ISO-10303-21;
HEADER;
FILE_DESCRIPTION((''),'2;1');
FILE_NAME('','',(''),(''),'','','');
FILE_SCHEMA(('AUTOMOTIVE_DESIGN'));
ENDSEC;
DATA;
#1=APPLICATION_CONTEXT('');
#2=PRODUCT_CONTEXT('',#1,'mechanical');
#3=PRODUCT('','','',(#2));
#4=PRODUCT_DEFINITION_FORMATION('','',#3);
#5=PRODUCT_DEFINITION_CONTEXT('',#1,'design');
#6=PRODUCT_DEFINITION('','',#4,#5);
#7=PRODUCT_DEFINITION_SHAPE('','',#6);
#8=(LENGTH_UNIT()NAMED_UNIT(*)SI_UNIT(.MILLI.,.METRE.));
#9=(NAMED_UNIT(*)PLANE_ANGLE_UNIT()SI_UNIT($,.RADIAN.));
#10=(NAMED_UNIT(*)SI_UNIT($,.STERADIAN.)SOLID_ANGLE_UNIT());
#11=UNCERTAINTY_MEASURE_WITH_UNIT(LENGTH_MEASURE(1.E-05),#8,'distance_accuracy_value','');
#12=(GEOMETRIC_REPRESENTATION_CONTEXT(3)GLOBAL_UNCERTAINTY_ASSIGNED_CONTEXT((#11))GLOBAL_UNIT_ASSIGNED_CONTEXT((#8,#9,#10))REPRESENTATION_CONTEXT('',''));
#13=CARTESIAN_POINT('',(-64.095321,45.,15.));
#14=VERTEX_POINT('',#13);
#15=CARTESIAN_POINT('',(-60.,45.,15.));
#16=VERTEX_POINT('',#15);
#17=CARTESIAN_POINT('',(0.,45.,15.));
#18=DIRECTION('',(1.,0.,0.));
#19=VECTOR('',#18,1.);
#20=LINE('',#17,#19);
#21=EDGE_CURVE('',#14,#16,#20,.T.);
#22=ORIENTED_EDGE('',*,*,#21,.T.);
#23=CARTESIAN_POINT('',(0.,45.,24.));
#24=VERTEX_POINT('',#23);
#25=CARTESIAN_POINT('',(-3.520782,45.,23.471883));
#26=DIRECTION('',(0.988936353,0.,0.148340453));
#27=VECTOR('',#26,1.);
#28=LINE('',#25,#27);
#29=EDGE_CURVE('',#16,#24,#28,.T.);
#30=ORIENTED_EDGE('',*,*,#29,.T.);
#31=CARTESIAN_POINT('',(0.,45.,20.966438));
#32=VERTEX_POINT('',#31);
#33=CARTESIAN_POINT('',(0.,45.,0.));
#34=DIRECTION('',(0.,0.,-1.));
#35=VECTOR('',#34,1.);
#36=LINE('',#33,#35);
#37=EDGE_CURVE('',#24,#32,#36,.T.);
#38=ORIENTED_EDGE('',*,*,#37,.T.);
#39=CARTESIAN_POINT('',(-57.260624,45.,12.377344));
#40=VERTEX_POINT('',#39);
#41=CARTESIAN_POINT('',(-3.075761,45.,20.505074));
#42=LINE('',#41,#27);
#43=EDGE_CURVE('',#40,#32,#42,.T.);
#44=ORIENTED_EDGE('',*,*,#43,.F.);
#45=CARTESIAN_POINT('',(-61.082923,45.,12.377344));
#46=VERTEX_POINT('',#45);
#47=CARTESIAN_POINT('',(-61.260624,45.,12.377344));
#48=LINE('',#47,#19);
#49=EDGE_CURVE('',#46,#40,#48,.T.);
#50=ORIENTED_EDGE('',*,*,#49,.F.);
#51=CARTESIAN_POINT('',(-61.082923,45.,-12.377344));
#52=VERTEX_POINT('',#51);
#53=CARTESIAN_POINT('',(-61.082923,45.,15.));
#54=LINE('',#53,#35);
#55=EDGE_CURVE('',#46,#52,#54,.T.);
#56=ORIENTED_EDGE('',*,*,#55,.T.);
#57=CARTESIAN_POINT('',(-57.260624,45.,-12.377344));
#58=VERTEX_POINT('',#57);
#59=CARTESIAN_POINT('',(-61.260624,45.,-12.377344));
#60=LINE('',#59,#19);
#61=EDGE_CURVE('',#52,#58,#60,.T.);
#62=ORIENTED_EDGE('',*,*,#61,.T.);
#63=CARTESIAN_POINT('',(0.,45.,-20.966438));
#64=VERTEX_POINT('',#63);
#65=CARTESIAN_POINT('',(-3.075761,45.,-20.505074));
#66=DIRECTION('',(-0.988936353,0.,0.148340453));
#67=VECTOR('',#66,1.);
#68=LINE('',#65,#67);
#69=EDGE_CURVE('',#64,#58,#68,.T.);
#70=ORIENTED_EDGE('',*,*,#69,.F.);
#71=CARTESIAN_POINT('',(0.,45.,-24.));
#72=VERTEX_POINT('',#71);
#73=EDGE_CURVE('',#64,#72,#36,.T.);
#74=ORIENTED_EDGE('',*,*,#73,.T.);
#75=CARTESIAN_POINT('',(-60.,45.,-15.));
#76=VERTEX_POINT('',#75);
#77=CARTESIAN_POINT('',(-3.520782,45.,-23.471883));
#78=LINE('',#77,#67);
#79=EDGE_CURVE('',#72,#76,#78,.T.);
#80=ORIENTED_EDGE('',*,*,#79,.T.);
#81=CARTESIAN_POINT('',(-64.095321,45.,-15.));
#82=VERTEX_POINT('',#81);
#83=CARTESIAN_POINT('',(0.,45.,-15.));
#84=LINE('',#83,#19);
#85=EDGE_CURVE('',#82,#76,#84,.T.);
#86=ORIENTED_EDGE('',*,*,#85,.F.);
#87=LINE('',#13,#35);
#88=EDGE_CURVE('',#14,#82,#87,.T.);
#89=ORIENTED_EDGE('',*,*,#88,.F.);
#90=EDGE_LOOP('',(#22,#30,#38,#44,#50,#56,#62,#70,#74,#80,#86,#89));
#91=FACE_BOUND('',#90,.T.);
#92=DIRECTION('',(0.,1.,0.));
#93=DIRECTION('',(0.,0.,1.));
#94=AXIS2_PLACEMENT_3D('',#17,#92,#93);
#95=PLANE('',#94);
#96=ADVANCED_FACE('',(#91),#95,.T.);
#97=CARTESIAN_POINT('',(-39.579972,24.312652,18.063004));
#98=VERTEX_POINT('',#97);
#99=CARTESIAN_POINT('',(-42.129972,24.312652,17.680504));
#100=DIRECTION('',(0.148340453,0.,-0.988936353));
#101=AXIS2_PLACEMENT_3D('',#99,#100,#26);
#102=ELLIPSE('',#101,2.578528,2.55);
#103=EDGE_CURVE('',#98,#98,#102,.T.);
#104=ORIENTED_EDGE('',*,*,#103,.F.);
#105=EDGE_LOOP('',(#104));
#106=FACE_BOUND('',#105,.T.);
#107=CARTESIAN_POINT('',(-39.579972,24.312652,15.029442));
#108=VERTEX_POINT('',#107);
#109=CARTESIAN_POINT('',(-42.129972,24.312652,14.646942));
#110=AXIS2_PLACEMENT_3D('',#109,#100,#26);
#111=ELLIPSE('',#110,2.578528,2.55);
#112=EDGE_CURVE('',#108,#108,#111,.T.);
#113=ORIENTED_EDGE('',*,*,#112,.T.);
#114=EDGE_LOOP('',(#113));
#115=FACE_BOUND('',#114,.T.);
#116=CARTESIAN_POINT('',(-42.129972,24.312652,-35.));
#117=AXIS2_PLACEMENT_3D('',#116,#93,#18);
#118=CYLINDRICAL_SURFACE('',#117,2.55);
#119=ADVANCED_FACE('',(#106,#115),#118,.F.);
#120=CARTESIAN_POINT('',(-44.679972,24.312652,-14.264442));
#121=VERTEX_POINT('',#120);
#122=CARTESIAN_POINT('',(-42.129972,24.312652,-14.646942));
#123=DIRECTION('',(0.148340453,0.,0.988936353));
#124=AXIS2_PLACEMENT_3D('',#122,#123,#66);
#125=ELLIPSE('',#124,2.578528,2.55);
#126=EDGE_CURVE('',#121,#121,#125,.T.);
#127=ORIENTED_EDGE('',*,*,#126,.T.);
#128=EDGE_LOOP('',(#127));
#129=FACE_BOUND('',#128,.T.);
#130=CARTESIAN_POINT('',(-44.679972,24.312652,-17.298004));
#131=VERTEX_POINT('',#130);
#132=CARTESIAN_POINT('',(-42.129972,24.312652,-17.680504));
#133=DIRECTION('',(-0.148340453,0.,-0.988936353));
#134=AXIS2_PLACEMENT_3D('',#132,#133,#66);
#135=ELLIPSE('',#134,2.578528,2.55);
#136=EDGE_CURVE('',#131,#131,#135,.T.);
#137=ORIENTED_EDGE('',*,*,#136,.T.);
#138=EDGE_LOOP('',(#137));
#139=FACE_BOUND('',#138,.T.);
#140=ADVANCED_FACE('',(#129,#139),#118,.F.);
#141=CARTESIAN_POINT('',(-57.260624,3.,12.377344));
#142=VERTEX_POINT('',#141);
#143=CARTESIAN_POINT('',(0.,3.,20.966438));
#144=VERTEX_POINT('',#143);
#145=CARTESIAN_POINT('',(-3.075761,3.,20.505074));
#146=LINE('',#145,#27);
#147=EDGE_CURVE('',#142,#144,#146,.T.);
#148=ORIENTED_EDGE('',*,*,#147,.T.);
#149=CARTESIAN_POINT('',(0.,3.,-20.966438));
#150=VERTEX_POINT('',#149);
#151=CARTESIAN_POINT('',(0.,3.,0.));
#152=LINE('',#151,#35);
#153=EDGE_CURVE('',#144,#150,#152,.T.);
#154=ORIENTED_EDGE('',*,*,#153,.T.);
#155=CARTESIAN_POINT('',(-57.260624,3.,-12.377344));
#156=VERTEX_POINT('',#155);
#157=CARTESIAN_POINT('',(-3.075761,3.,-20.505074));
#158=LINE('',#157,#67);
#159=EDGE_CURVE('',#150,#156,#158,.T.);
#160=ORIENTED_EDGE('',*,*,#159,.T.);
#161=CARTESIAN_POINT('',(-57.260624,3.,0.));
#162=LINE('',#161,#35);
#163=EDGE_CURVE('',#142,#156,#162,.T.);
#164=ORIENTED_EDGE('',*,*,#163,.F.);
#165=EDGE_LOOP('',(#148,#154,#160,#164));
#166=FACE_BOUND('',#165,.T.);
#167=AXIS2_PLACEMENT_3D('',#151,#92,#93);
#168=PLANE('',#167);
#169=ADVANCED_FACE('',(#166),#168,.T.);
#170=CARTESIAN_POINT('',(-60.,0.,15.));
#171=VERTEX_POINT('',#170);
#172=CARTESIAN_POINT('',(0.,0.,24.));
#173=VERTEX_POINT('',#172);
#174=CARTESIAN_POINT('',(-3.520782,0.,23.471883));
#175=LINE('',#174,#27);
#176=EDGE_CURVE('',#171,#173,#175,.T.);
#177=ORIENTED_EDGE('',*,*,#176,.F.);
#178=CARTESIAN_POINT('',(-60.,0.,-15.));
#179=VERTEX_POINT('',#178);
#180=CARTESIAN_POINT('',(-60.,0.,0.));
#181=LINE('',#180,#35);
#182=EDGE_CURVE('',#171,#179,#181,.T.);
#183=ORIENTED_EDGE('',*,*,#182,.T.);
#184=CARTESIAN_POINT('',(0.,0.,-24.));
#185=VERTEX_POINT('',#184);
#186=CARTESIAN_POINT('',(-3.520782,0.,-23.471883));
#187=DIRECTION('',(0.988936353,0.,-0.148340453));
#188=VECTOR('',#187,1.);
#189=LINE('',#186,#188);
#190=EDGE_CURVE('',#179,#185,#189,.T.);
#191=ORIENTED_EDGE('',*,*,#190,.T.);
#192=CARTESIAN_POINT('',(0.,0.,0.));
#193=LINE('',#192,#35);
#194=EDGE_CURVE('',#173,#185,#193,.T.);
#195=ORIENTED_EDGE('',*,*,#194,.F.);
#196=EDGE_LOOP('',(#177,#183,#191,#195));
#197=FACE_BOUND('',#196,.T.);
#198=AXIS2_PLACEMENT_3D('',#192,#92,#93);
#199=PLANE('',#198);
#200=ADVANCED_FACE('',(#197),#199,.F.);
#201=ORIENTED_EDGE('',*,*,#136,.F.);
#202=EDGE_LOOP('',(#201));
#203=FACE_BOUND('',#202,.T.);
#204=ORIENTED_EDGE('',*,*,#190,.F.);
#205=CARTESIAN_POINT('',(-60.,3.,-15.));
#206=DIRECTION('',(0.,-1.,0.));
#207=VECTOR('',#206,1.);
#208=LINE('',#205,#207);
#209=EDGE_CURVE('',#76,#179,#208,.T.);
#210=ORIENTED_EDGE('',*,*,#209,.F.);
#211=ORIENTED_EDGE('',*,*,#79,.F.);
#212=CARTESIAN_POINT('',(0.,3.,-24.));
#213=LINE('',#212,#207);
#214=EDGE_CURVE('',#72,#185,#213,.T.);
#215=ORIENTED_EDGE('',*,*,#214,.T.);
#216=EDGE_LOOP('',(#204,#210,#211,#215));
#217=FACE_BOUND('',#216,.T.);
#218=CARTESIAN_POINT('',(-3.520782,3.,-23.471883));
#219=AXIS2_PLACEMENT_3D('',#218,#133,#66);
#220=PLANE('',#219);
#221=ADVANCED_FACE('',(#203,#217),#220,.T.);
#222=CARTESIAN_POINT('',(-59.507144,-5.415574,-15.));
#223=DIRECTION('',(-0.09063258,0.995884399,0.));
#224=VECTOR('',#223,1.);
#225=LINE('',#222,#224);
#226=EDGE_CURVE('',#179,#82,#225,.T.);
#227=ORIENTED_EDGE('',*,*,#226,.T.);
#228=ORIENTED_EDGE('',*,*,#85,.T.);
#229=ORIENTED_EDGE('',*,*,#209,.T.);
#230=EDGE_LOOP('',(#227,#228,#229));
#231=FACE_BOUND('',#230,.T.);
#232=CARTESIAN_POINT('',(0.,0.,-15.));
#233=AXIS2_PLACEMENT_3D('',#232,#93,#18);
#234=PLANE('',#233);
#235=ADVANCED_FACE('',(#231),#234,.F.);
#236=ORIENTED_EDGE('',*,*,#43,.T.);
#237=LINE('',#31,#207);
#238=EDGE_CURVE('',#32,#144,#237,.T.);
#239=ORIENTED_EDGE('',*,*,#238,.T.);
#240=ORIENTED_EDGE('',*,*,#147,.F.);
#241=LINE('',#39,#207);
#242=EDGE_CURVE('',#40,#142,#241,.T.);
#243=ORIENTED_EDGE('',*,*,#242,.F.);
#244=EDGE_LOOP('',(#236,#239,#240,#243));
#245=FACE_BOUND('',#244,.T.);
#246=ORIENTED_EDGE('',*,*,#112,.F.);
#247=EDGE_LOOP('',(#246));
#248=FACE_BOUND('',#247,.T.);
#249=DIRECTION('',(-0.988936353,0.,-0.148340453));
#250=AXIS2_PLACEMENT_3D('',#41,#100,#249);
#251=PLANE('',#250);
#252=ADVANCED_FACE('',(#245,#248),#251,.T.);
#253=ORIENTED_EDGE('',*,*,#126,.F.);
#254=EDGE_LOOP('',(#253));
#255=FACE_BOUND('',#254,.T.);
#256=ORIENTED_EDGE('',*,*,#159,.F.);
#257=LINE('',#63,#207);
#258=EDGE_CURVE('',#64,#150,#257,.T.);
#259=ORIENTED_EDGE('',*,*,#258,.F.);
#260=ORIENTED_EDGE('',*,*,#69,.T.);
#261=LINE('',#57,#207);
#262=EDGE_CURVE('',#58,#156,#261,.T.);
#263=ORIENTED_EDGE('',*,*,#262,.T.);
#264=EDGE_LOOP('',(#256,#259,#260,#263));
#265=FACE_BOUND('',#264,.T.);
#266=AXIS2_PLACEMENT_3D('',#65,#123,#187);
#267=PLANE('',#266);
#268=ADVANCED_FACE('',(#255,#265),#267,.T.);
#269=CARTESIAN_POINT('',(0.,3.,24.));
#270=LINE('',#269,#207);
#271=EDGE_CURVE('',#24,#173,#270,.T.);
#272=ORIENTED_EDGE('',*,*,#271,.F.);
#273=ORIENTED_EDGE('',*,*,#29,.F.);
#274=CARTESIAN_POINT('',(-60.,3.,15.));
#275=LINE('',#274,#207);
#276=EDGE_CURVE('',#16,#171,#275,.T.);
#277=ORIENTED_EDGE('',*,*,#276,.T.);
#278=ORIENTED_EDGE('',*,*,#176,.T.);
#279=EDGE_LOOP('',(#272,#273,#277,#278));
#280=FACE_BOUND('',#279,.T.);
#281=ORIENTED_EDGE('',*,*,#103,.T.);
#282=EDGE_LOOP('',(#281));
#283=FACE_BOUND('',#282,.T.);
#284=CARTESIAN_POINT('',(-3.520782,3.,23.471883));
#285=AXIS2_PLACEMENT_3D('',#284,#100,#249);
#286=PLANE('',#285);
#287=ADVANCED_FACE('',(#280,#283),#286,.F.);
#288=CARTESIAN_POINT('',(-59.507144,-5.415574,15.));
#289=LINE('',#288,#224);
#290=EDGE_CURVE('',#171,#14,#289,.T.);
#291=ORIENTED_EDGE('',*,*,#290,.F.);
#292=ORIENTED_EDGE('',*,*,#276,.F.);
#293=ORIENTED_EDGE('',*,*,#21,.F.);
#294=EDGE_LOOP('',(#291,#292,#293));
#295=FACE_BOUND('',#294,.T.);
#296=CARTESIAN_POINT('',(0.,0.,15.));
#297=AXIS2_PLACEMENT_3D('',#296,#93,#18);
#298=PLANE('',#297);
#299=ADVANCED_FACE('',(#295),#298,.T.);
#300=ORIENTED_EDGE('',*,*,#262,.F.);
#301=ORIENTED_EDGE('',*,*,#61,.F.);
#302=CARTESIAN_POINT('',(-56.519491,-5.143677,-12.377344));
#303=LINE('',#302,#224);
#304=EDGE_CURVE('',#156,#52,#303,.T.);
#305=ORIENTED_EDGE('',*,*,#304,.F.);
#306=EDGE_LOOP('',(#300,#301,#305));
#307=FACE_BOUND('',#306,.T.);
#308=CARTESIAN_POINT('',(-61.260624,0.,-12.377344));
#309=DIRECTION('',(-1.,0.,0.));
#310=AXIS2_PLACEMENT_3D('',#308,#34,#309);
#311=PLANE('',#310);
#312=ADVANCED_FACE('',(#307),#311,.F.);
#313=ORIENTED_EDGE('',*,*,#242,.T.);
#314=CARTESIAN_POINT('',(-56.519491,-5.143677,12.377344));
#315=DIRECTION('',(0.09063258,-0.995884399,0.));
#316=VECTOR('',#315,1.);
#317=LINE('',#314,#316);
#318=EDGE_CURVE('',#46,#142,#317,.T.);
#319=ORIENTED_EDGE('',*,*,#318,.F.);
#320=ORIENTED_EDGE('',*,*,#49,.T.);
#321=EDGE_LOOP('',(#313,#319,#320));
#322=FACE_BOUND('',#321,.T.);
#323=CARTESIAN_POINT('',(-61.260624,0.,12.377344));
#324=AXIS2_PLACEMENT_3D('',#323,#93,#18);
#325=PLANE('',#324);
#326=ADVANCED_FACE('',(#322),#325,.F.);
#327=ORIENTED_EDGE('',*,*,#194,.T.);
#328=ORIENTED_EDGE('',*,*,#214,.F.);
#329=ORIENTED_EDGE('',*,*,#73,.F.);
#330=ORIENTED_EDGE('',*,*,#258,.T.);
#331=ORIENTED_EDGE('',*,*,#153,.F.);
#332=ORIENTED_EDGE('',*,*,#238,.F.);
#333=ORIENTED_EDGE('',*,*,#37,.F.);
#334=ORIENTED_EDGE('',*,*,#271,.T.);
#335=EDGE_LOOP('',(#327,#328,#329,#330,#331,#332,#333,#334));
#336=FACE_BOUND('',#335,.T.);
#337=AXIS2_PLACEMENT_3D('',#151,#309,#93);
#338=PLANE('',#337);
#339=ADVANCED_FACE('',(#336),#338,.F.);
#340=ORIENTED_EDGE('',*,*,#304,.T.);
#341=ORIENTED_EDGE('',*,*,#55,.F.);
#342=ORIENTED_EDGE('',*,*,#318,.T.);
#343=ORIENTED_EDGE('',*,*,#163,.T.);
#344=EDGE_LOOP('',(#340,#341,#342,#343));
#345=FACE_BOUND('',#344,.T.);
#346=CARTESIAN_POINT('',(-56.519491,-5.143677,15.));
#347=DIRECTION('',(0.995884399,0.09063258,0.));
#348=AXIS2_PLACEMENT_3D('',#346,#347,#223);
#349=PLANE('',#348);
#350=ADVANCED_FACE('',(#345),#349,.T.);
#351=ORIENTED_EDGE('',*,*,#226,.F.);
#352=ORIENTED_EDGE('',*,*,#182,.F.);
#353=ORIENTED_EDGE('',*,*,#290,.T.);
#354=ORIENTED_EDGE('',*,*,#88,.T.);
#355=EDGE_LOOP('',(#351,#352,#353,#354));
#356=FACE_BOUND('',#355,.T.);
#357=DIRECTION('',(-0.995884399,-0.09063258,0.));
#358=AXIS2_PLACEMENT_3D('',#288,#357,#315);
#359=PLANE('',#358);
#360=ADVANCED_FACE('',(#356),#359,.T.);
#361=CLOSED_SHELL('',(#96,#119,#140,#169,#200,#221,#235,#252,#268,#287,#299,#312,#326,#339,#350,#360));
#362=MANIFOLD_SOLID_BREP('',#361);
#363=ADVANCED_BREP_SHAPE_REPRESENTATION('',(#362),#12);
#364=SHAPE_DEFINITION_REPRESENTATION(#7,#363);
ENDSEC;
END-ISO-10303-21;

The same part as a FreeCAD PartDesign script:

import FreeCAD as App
import Part
import Sketcher
from FreeCAD import Vector
Q = App.Units.Quantity


def add_polygon(sketch, points):
    """Adds a closed chain of lines whose ends are joined by coincident constraints."""
    first, n = sketch.GeometryCount, len(points)
    for a, b in zip(points, points[1:] + points[:1]):
        sketch.addGeometry(Part.LineSegment(App.Vector(*a, 0), App.Vector(*b, 0)), False)
    for i in range(n):
        sketch.addConstraint(Sketcher.Constraint("Coincident", first + i, 2, first + (i + 1) % n, 1))

doc = App.newDocument("Part")
body = doc.addObject("PartDesign::Body", "Body")

sketch1 = doc.addObject("Sketcher::SketchObject", "Sketch")
body.addObject(sketch1)
sketch1.AttachmentSupport = (doc.XZ_Plane, [""])
sketch1.MapMode = "FlatFace"
add_polygon(sketch1, [(0, -24), (-60, -15), (-60, 15), (0, 24)])
sketch1.addConstraint(Sketcher.Constraint("Vertical", 1))
sketch1.addConstraint(Sketcher.Constraint("Vertical", 3))
sketch1.addConstraint(Sketcher.Constraint("Symmetric", 2, 2, 3, 2, -1, 1))
sketch1.addConstraint(Sketcher.Constraint("Equal", 0, 2))
sketch1.addConstraint(Sketcher.Constraint("DistanceY", 1, 1, 1, 2, 30.0))
sketch1.addConstraint(Sketcher.Constraint("DistanceY", 3, 2, 3, 1, 48.0))
sketch1.addConstraint(Sketcher.Constraint("DistanceX", 0, 2, -1, 1, 60.0))
pad1 = doc.addObject("PartDesign::Pad", "Pad")
body.addObject(pad1)
pad1.Profile = sketch1
pad1.Length = 3
pad1.Reversed = True

sketch2 = doc.addObject("Sketcher::SketchObject", "Sketch001")
body.addObject(sketch2)
sketch2.AttachmentSupport = (doc.XY_Plane, [""])
sketch2.MapMode = "FlatFace"
add_polygon(sketch2, [(-61.1, 45), (-64.1, 45), (-60, 0), (-57, 0)])
sketch2.addConstraint(Sketcher.Constraint("Horizontal", 0))
sketch2.addConstraint(Sketcher.Constraint("Horizontal", 2))
sketch2.addConstraint(Sketcher.Constraint("PointOnObject", 1, 2, -1))
sketch2.addConstraint(Sketcher.Constraint("Parallel", 1, 3))
sketch2.addConstraint(Sketcher.Constraint("DistanceY", -1, 1, 0, 2, 45.0))
sketch2.addConstraint(Sketcher.Constraint("DistanceX", 1, 2, -1, 1, 60.0))
sketch2.addConstraint(Sketcher.Constraint("Angle", 1, Q("-84.8 deg")))
sketch2.addConstraint(Sketcher.Constraint("DistanceX", 0, 2, 0, 1, 3.012398))
pad2 = doc.addObject("PartDesign::Pad", "Pad001")
body.addObject(pad2)
pad2.Profile = sketch2
pad2.Length = 30
pad2.Midplane = True

sketch3 = doc.addObject("Sketcher::SketchObject", "Sketch002")
body.addObject(sketch3)
sketch3.AttachmentSupport = (doc.XZ_Plane, [""])
sketch3.MapMode = "FlatFace"
sketch3.AttachmentOffset = App.Placement(Vector(0, 0, -3), App.Rotation())
add_polygon(sketch3, [(-57.3, -12.4), (0, -21), (0, -24), (-60, -15), (-57.3, -15)])
add_polygon(sketch3, [(0, 24), (0, 21), (-57.3, 12.4), (-57.3, 15), (-60, 15)])
sketch3.addConstraint(Sketcher.Constraint("Vertical", 1))
sketch3.addConstraint(Sketcher.Constraint("Horizontal", 3))
sketch3.addConstraint(Sketcher.Constraint("Vertical", 4))
sketch3.addConstraint(Sketcher.Constraint("Vertical", 5))
sketch3.addConstraint(Sketcher.Constraint("Vertical", 7))
sketch3.addConstraint(Sketcher.Constraint("Horizontal", 8))
sketch3.addConstraint(Sketcher.Constraint("Symmetric", 0, 2, 5, 2, -1, 1))
sketch3.addConstraint(Sketcher.Constraint("Symmetric", 4, 2, 6, 2, -1))
sketch3.addConstraint(Sketcher.Constraint("Symmetric", 2, 2, 8, 2, -1))
sketch3.addConstraint(Sketcher.Constraint("Symmetric", 1, 2, 9, 2, -1))
sketch3.addConstraint(Sketcher.Constraint("Parallel", 0, 2))
sketch3.addConstraint(Sketcher.Constraint("DistanceY", 1, 2, -1, 1, 24.0))
sketch3.addConstraint(Sketcher.Constraint("DistanceX", 2, 2, -1, 1, 60.0))
sketch3.addConstraint(Sketcher.Constraint("DistanceY", 2, 2, -1, 1, 15.0))
sketch3.addConstraint(Sketcher.Constraint("DistanceX", 3, 1, 3, 2, 2.739376))
sketch3.addConstraint(Sketcher.Constraint("DistanceY", 1, 2, 1, 1, 3.033562))
pad3 = doc.addObject("PartDesign::Pad", "Pad002")
body.addObject(pad3)
pad3.Profile = sketch3
pad3.Length = 42
pad3.Reversed = True

sketch4 = doc.addObject("Sketcher::SketchObject", "Sketch003")
body.addObject(sketch4)
sketch4.AttachmentSupport = (doc.YZ_Plane, [""])
sketch4.MapMode = "FlatFace"
sketch4.AttachmentOffset = App.Placement(Vector(0, 0, -57.260624), App.Rotation())
add_polygon(sketch4, [(45, -15), (3, -15), (3, -12.4), (45, -12.4)])
add_polygon(sketch4, [(45, 12.4), (0, 12.4), (0, 15), (45, 15)])
sketch4.addConstraint(Sketcher.Constraint("Horizontal", 0))
sketch4.addConstraint(Sketcher.Constraint("Vertical", 1))
sketch4.addConstraint(Sketcher.Constraint("Horizontal", 2))
sketch4.addConstraint(Sketcher.Constraint("Vertical", 3))
sketch4.addConstraint(Sketcher.Constraint("Horizontal", 4))
sketch4.addConstraint(Sketcher.Constraint("Vertical", 5))
sketch4.addConstraint(Sketcher.Constraint("Horizontal", 6))
sketch4.addConstraint(Sketcher.Constraint("Vertical", 7))
sketch4.addConstraint(Sketcher.Constraint("Symmetric", 3, 2, 6, 2, -1))
sketch4.addConstraint(Sketcher.Constraint("PointOnObject", 4, 2, -2))
sketch4.addConstraint(Sketcher.Constraint("Equal", 3, 5))
sketch4.addConstraint(Sketcher.Constraint("DistanceX", 0, 2, 0, 1, 42.0))
sketch4.addConstraint(Sketcher.Constraint("DistanceX", 4, 2, 4, 1, 45.0))
sketch4.addConstraint(Sketcher.Constraint("DistanceY", 0, 2, -1, 1, 15.0))
sketch4.addConstraint(Sketcher.Constraint("DistanceY", 1, 1, 1, 2, 2.622656))
pad4 = doc.addObject("PartDesign::Pad", "Pad003")
body.addObject(pad4)
pad4.Profile = sketch4
pad4.Length = 4
pad4.Reversed = True

sketch5 = doc.addObject("Sketcher::SketchObject", "Sketch004")
body.addObject(sketch5)
sketch5.AttachmentSupport = (doc.XY_Plane, [""])
sketch5.MapMode = "FlatFace"
sketch5.AttachmentOffset = App.Placement(Vector(0, 0, 15), App.Rotation())
add_polygon(sketch5, [(-60, 0), (-61.3, 13.9), (-61.3, 0)])
sketch5.addConstraint(Sketcher.Constraint("Vertical", 1))
sketch5.addConstraint(Sketcher.Constraint("Horizontal", 2))
sketch5.addConstraint(Sketcher.Constraint("PointOnObject", 1, 2, -1))
sketch5.addConstraint(Sketcher.Constraint("DistanceX", 2, 2, -1, 1, 60.0))
sketch5.addConstraint(Sketcher.Constraint("Angle", 0, Q("95.2 deg")))
sketch5.addConstraint(Sketcher.Constraint("DistanceY", 1, 2, 1, 1, 13.851921))
pocket1 = doc.addObject("PartDesign::Pocket", "Pocket")
body.addObject(pocket1)
pocket1.Profile = sketch5
pocket1.Type = "ThroughAll"

sketch6 = doc.addObject("Sketcher::SketchObject", "Sketch005")
body.addObject(sketch6)
sketch6.AttachmentSupport = (doc.XY_Plane, [""])
sketch6.MapMode = "FlatFace"
sketch6.AttachmentOffset = App.Placement(Vector(0, 0, 15), App.Rotation())
sketch6.addGeometry(Part.Circle(Vector(-42.1, 24.3, 0), Vector(0, 0, 1), 2.5), False)
sketch6.addConstraint(Sketcher.Constraint("Diameter", 0, 5.1))
sketch6.addConstraint(Sketcher.Constraint("DistanceY", -1, 1, 0, 3, 24.312652))
sketch6.addConstraint(Sketcher.Constraint("DistanceX", 0, 3, -1, 1, 42.129972))
pocket2 = doc.addObject("PartDesign::Pocket", "Pocket001")
body.addObject(pocket2)
pocket2.Profile = sketch6
pocket2.Length = 100
pocket2.Midplane = True

doc.recompute()
